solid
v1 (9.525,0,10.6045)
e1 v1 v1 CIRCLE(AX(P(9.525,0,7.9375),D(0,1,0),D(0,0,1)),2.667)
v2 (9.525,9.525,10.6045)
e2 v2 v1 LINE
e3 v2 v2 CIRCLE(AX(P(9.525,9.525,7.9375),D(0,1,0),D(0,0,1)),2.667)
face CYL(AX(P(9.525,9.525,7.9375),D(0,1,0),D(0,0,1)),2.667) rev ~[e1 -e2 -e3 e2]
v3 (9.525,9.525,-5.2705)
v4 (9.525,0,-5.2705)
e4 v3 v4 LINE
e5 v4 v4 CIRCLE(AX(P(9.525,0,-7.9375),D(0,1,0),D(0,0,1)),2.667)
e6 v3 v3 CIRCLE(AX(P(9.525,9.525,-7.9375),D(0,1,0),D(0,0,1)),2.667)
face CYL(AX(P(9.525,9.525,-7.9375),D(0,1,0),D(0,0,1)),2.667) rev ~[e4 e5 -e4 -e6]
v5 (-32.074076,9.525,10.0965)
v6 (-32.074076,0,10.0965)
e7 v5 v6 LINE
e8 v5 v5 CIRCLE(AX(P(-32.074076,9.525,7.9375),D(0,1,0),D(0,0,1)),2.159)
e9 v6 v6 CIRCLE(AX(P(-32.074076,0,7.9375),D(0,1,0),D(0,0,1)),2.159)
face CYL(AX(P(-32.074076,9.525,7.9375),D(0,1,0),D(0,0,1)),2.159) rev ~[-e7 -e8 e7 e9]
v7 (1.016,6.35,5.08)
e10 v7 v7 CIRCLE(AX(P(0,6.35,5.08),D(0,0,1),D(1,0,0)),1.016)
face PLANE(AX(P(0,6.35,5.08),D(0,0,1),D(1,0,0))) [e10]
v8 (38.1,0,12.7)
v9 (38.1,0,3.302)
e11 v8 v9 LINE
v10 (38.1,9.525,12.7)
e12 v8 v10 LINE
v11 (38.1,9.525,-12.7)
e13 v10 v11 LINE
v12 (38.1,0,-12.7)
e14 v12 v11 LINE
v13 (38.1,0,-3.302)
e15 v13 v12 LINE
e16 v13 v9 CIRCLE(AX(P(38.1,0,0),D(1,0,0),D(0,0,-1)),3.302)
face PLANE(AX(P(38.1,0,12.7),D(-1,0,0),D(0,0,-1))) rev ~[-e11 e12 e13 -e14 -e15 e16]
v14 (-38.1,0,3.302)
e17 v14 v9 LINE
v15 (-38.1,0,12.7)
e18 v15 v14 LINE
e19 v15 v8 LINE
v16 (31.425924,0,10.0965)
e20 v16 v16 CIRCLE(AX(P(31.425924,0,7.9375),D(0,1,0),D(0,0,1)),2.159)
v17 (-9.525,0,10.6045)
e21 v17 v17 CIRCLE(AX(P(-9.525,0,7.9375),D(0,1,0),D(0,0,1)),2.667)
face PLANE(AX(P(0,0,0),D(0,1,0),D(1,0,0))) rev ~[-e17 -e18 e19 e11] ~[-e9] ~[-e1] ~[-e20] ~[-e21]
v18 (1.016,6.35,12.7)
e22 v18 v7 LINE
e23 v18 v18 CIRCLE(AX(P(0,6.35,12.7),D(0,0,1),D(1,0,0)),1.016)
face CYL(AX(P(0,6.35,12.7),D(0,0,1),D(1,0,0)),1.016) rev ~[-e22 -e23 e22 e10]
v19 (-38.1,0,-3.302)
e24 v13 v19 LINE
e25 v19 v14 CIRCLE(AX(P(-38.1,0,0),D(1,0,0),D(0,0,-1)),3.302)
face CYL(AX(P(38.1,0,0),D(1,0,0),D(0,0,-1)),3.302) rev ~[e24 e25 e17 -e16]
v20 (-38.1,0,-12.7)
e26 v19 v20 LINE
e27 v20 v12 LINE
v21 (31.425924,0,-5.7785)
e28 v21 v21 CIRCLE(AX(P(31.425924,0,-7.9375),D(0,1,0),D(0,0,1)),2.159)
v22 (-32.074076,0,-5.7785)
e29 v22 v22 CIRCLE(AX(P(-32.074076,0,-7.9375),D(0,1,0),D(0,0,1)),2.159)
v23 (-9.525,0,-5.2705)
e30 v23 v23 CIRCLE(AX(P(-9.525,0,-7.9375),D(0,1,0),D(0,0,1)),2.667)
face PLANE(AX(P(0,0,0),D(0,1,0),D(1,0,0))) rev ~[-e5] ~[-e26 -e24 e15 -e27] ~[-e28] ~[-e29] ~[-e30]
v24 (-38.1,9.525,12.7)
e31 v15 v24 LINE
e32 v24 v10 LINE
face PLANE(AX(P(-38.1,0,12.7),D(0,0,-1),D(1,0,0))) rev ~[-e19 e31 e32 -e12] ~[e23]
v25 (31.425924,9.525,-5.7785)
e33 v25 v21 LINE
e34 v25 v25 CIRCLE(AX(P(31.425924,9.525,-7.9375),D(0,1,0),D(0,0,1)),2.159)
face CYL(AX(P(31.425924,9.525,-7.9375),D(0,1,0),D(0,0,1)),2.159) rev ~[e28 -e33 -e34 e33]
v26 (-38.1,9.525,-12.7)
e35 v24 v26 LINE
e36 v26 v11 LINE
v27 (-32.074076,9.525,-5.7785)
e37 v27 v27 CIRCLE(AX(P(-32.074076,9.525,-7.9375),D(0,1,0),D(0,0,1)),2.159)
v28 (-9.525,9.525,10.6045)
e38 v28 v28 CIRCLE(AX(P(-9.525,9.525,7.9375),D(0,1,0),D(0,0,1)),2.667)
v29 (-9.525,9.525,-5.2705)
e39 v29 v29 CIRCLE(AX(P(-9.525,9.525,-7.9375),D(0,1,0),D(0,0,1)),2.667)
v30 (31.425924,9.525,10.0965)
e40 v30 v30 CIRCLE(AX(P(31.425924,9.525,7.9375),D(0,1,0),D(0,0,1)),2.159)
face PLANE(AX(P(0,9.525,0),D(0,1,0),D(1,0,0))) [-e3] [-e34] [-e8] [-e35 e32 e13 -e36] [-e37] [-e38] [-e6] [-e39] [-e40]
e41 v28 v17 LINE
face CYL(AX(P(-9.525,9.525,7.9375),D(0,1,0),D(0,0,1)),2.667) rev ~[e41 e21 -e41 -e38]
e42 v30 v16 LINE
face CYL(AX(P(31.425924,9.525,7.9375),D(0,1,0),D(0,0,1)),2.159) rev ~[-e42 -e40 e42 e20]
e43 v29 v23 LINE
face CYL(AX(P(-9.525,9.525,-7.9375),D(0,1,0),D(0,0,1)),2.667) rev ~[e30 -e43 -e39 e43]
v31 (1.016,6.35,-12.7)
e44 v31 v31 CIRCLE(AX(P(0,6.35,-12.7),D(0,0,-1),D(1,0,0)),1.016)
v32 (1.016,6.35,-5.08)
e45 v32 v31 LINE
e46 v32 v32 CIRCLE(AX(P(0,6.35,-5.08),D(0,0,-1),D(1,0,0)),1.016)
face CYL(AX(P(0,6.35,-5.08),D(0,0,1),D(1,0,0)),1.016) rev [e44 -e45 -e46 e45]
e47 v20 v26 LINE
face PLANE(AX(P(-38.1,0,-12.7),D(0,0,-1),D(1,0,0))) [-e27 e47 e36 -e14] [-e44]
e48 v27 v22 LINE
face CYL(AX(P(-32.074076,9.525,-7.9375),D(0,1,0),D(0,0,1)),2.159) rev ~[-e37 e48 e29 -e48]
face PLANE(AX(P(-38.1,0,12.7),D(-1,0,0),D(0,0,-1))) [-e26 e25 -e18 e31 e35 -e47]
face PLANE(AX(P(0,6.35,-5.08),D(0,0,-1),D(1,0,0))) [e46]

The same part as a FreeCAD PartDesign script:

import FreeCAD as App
import Part
import Sketcher
Q = App.Units.Quantity

doc = App.newDocument("Part")
body = doc.addObject("PartDesign::Body", "Body")

# Sketch on XZ plane
sketch1 = body.newObject("Sketcher::SketchObject", "Sketch")
sketch1.AttachmentSupport = (doc.getObject("XZ_Plane"), [""])
sketch1.MapMode = "FlatFace"
sketch1.addGeometry([
    Part.LineSegment(App.Vector(-38.1, -12.7, 0), App.Vector(-38.1, 12.7, 0)),
    Part.LineSegment(App.Vector(-38.1, 12.7, 0), App.Vector(38.1, 12.7, 0)),
    Part.LineSegment(App.Vector(38.1, 12.7, 0), App.Vector(38.1, -12.7, 0)),
    Part.LineSegment(App.Vector(38.1, -12.7, 0), App.Vector(-38.1, -12.7, 0)),
], False)
sketch1.addConstraint([
    Sketcher.Constraint("Coincident", 0, 2, 1, 1),
    Sketcher.Constraint("Coincident", 1, 2, 2, 1),
    Sketcher.Constraint("Coincident", 2, 2, 3, 1),
    Sketcher.Constraint("Coincident", 3, 2, 0, 1),
    Sketcher.Constraint("Vertical", 0),
    Sketcher.Constraint("Horizontal", 1),
    Sketcher.Constraint("Vertical", 2),
    Sketcher.Constraint("Horizontal", 3),
    Sketcher.Constraint("Symmetric", 0, 2, 2, 2, -1, 1),
    Sketcher.Constraint("DistanceX", 1, 1, 1, 2, Q("3 in")),
    Sketcher.Constraint("DistanceY", 0, 1, 0, 2, Q("1 in")),
])
pad1 = body.newObject("PartDesign::Pad", "Pad")
pad1.Profile = sketch1
pad1.Length = Q("0.375 in")
pad1.Reversed = True

# Sketch on XZ plane
sketch2 = body.newObject("Sketcher::SketchObject", "Sketch001")
sketch2.AttachmentSupport = (doc.getObject("XZ_Plane"), [""])
sketch2.MapMode = "FlatFace"
sketch2.AttachmentOffset = App.Placement(App.Vector(0, 0, -0.375 * 25.4), App.Rotation())
sketch2.addGeometry([
    Part.Circle(App.Vector(-32.074076, -7.9375, 0), App.Vector(0, 0, 1), 2.159),
    Part.Circle(App.Vector(-32.074076, 7.9375, 0), App.Vector(0, 0, 1), 2.159),
    Part.Circle(App.Vector(31.425924, -7.9375, 0), App.Vector(0, 0, 1), 2.159),
    Part.Circle(App.Vector(31.425924, 7.9375, 0), App.Vector(0, 0, 1), 2.159),
], False)
sketch2.addConstraint([
    Sketcher.Constraint("Equal", 0, 1),
    Sketcher.Constraint("Equal", 1, 2),
    Sketcher.Constraint("Equal", 2, 3),
    Sketcher.Constraint("Symmetric", 0, 3, 1, 3, -1),
    Sketcher.Constraint("Symmetric", 2, 3, 3, 3, -1),
    Sketcher.Constraint("Horizontal", 0, 3, 2, 3),
    Sketcher.Constraint("Diameter", 0, Q("0.17 in")),
    Sketcher.Constraint("DistanceX", 0, 3, 2, 3, Q("2.5 in")),
    Sketcher.Constraint("DistanceY", 0, 3, -1, 1, Q("0.3125 in")),
    Sketcher.Constraint("DistanceX", 0, 3, -1, 1, Q("32.074076 mm")),
])
pocket1 = body.newObject("PartDesign::Pocket", "Pocket")
pocket1.Profile = sketch2
pocket1.Type = "ThroughAll"
pocket1.Reversed = True

# Sketch on XZ plane
sketch3 = body.newObject("Sketcher::SketchObject", "Sketch002")
sketch3.AttachmentSupport = (doc.getObject("XZ_Plane"), [""])
sketch3.MapMode = "FlatFace"
sketch3.AttachmentOffset = App.Placement(App.Vector(0, 0, -0.375 * 25.4), App.Rotation())
sketch3.addGeometry([
    Part.Circle(App.Vector(-9.525, -7.9375, 0), App.Vector(0, 0, 1), 2.667),
    Part.Circle(App.Vector(-9.525, 7.9375, 0), App.Vector(0, 0, 1), 2.667),
    Part.Circle(App.Vector(9.525, -7.9375, 0), App.Vector(0, 0, 1), 2.667),
    Part.Circle(App.Vector(9.525, 7.9375, 0), App.Vector(0, 0, 1), 2.667),
], False)
sketch3.addConstraint([
    Sketcher.Constraint("Equal", 0, 1),
    Sketcher.Constraint("Equal", 1, 2),
    Sketcher.Constraint("Equal", 2, 3),
    Sketcher.Constraint("Symmetric", 1, 3, 2, 3, -1, 1),
    Sketcher.Constraint("Symmetric", 0, 3, 3, 3, -1, 1),
    Sketcher.Constraint("Symmetric", 0, 3, 2, 3, -2),
    Sketcher.Constraint("Diameter", 0, Q("0.21 in")),
    Sketcher.Constraint("DistanceX", 0, 3, 2, 3, Q("0.75 in")),
    Sketcher.Constraint("DistanceY", 0, 3, -1, 1, Q("0.3125 in")),
])
pocket2 = body.newObject("PartDesign::Pocket", "Pocket001")
pocket2.Profile = sketch3
pocket2.Type = "ThroughAll"
pocket2.Reversed = True

# Sketch on XY plane
sketch4 = body.newObject("Sketcher::SketchObject", "Sketch003")
sketch4.AttachmentSupport = (doc.getObject("XY_Plane"), [""])
sketch4.MapMode = "FlatFace"
sketch4.AttachmentOffset = App.Placement(App.Vector(0, 0, 0.5 * 25.4), App.Rotation())
sketch4.addGeometry(Part.Circle(App.Vector(0, 6.35, 0), App.Vector(0, 0, 1), 1.016), False)
sketch4.addConstraint([
    Sketcher.Constraint("PointOnObject", 0, 3, -2),
    Sketcher.Constraint("Diameter", 0, Q("0.08 in")),
    Sketcher.Constraint("DistanceY", -1, 1, 0, 3, Q("0.25 in")),
])
pocket3 = body.newObject("PartDesign::Pocket", "Pocket002")
pocket3.Profile = sketch4
pocket3.Length = Q("0.3 in")

# Sketch on XY plane
sketch5 = body.newObject("Sketcher::SketchObject", "Sketch004")
sketch5.AttachmentSupport = (doc.getObject("XY_Plane"), [""])
sketch5.MapMode = "FlatFace"
sketch5.AttachmentOffset = App.Placement(App.Vector(0, 0, -0.2 * 25.4), App.Rotation())
sketch5.addGeometry(Part.Circle(App.Vector(0, 6.35, 0), App.Vector(0, 0, 1), 1.016), False)
sketch5.addConstraint([
    Sketcher.Constraint("PointOnObject", 0, 3, -2),
    Sketcher.Constraint("Diameter", 0, Q("0.08 in")),
    Sketcher.Constraint("DistanceY", -1, 1, 0, 3, Q("0.25 in")),
])
pocket4 = body.newObject("PartDesign::Pocket", "Pocket003")
pocket4.Profile = sketch5
pocket4.Length = Q("0.3 in")

# Sketch on YZ plane
sketch6 = body.newObject("Sketcher::SketchObject", "Sketch005")
sketch6.AttachmentSupport = (doc.getObject("YZ_Plane"), [""])
sketch6.MapMode = "FlatFace"
sketch6.AttachmentOffset = App.Placement(App.Vector(0, 0, 1.5 * 25.4), App.Rotation())
sketch6.addGeometry(Part.Circle(App.Vector(0, 0, 0), App.Vector(0, 0, 1), 3.302), False)
sketch6.addConstraint([
    Sketcher.Constraint("Coincident", 0, 3, -1, 1),
    Sketcher.Constraint("Diameter", 0, Q("0.26 in")),
])
pocket5 = body.newObject("PartDesign::Pocket", "Pocket004")
pocket5.Profile = sketch6
pocket5.Type = "ThroughAll"

doc.recompute()
